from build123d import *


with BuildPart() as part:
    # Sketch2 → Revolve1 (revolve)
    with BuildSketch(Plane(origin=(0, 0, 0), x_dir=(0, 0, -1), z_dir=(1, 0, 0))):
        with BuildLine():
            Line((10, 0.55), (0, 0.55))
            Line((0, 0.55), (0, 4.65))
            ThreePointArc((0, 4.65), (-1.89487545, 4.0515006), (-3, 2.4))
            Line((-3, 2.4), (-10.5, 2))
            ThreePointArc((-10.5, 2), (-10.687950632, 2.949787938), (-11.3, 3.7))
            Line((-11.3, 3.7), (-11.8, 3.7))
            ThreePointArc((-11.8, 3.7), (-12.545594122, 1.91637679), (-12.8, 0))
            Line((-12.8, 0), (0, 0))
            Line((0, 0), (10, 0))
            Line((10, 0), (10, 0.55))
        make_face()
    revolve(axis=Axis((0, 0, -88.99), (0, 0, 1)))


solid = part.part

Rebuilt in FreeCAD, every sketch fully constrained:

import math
import FreeCAD as App
import Part
import Sketcher
from FreeCAD import Vector
Q = App.Units.Quantity

doc = App.newDocument("Part")
body = doc.addObject("PartDesign::Body", "Body")

sketch1 = body.newObject("Sketcher::SketchObject", "Sketch")
sketch1.AttachmentSupport = (doc.getObject("YZ_Plane"), [""])
sketch1.MapMode = "FlatFace"
sketch1.addGeometry(Part.LineSegment(Vector(0.6, -10, 0), Vector(0.6, 0, 0)), False)
sketch1.addGeometry(Part.LineSegment(Vector(0.6, 0, 0), Vector(4.7, 0, 0)), False)
sketch1.addGeometry(Part.ArcOfCircle(Part.Circle(Vector(1.7, 0.1, 0), Vector(0, 0, 1), 3), math.radians(-2), math.radians(76)), False)
sketch1.addGeometry(Part.LineSegment(Vector(2.4, 3, 0), Vector(2, 10.5, 0)), False)
sketch1.addGeometry(Part.ArcOfCircle(Part.Circle(Vector(2.1, 12.5, 0), Vector(0, 0, 1), 2), math.radians(-93), math.radians(-37)), False)
sketch1.addGeometry(Part.LineSegment(Vector(3.7, 11.3, 0), Vector(3.7, 11.8, 0)), False)
sketch1.addGeometry(Part.ArcOfCircle(Part.Circle(Vector(0, 5.5, 0), Vector(0, 0, 1), 7.3), math.radians(60), math.radians(90)), False)
sketch1.addGeometry(Part.LineSegment(Vector(0, 12.8, 0), Vector(0, -10, 0)), False)
sketch1.addGeometry(Part.LineSegment(Vector(0, -10, 0), Vector(0.6, -10, 0)), False)
sketch1.addConstraint(Sketcher.Constraint("Coincident", 0, 2, 1, 1))
sketch1.addConstraint(Sketcher.Constraint("Coincident", 1, 2, 2, 1))
sketch1.addConstraint(Sketcher.Constraint("Coincident", 2, 2, 3, 1))
sketch1.addConstraint(Sketcher.Constraint("Coincident", 3, 2, 4, 1))
sketch1.addConstraint(Sketcher.Constraint("Coincident", 4, 2, 5, 1))
sketch1.addConstraint(Sketcher.Constraint("Coincident", 5, 2, 6, 1))
sketch1.addConstraint(Sketcher.Constraint("Coincident", 6, 2, 7, 1))
sketch1.addConstraint(Sketcher.Constraint("Coincident", 7, 2, 8, 1))
sketch1.addConstraint(Sketcher.Constraint("Coincident", 8, 2, 0, 1))
sketch1.addConstraint(Sketcher.Constraint("Vertical", 0))
sketch1.addConstraint(Sketcher.Constraint("Horizontal", 1))
sketch1.addConstraint(Sketcher.Constraint("Vertical", 5))
sketch1.addConstraint(Sketcher.Constraint("Vertical", 7))
sketch1.addConstraint(Sketcher.Constraint("Horizontal", 8))
sketch1.addConstraint(Sketcher.Constraint("PointOnObject", 6, 3, -2))
sketch1.addConstraint(Sketcher.Constraint("PointOnObject", 0, 2, -1))
sketch1.addConstraint(Sketcher.Constraint("PointOnObject", 6, 2, -2))
sketch1.addConstraint(Sketcher.Constraint("Radius", 2, Q("3 mm")))
sketch1.addConstraint(Sketcher.Constraint("Radius", 4, Q("2 mm")))
sketch1.addConstraint(Sketcher.Constraint("DistanceY", 0, 1, 0, 2, Q("10 mm")))
sketch1.addConstraint(Sketcher.Constraint("DistanceX", 1, 1, 1, 2, Q("4.1 mm")))
sketch1.addConstraint(Sketcher.Constraint("DistanceY", 5, 1, 5, 2, Q("0.5 mm")))
sketch1.addConstraint(Sketcher.Constraint("DistanceY", 7, 2, 7, 1, Q("22.8 mm")))
sketch1.addConstraint(Sketcher.Constraint("DistanceY", -1, 1, 2, 2, Q("3 mm")))
sketch1.addConstraint(Sketcher.Constraint("DistanceX", -1, 1, 3, 2, Q("2 mm")))
sketch1.addConstraint(Sketcher.Constraint("Radius", 6, Q("7.345 mm")))
sketch1.addConstraint(Sketcher.Constraint("DistanceY", 5, 2, 6, 2, Q("1 mm")))
sketch1.addConstraint(Sketcher.Constraint("DistanceX", 8, 1, 8, 2, Q("0.55 mm")))
sketch1.addConstraint(Sketcher.Constraint("DistanceX", -1, 1, 2, 2, Q("2.4 mm")))
sketch1.addConstraint(Sketcher.Constraint("DistanceY", -1, 1, 3, 2, Q("10.5 mm")))
revolution = body.newObject("PartDesign::Revolution", "Revolution")
revolution.Profile = sketch1
revolution.ReferenceAxis = (sketch1, ["V_Axis"])
revolution.Angle = 360

doc.recompute()
